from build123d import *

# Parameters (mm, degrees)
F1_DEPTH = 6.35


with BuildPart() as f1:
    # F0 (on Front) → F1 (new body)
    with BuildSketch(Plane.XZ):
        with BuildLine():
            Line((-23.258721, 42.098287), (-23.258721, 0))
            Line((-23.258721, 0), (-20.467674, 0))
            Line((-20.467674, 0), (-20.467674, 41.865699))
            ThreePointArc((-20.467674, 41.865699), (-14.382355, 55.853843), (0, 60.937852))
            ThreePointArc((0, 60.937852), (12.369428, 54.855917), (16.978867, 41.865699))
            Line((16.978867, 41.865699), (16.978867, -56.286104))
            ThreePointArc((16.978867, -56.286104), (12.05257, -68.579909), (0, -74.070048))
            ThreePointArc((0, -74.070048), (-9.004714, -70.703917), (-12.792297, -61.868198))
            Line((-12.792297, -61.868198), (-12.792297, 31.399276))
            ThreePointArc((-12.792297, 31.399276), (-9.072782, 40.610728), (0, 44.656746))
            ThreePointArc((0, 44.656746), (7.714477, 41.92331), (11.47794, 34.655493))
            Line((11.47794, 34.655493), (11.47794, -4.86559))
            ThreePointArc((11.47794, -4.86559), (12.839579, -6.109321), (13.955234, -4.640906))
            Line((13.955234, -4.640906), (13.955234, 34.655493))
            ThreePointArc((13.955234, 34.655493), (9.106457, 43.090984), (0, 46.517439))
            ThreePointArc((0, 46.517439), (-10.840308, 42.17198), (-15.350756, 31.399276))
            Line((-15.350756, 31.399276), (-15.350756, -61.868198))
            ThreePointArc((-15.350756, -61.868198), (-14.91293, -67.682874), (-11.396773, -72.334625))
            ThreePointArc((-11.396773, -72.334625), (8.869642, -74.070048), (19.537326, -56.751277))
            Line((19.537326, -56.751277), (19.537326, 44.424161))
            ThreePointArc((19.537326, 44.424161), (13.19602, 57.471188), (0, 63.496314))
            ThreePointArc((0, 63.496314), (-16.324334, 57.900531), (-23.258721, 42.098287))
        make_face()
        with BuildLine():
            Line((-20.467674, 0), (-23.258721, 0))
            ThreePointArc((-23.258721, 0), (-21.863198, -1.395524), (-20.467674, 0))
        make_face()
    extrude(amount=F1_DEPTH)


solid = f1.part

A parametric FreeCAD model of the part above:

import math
import FreeCAD as App
import Part
import Sketcher
Q = App.Units.Quantity

doc = App.newDocument("Part")
body = doc.addObject("PartDesign::Body", "Body")

# Sketch on XZ plane
sketch1 = doc.addObject("Sketcher::SketchObject", "Sketch")
body.addObject(sketch1)
sketch1.AttachmentSupport = (doc.XZ_Plane, [""])
sketch1.MapMode = "FlatFace"
sketch1.addGeometry(Part.LineSegment(App.Vector(-23.258721, 42.098287, 0), App.Vector(-23.258721, 0, 0)), False)
sketch1.addGeometry(Part.ArcOfCircle(Part.Circle(App.Vector(-21.863197, 0, 0), App.Vector(0, 0, 1), 1.395523), math.radians(179.999979), math.radians(360.000021)), False)
sketch1.addGeometry(Part.LineSegment(App.Vector(-20.467674, 0, 0), App.Vector(-20.467674, 41.865699, 0)), False)
sketch1.addGeometry(Part.ArcOfCircle(Part.Circle(App.Vector(-1.347946, 41.865699, 0), App.Vector(0, 0, 1), 19.119728), math.radians(85.957277), math.radians(180)), False)
sketch1.addGeometry(Part.ArcOfCircle(Part.Circle(App.Vector(-1.289239, 42.696372, 0), App.Vector(0, 0, 1), 18.286983), math.radians(-2.603515), math.radians(85.957271)), False)
sketch1.addGeometry(Part.LineSegment(App.Vector(16.978867, 41.865699, 0), App.Vector(16.978867, -56.286104, 0)), False)
sketch1.addGeometry(Part.ArcOfCircle(Part.Circle(App.Vector(-0.824163, -56.286105, 0), App.Vector(0, 0, 1), 17.80303), math.radians(-87.346633), math.radians(0.000002)), False)
sketch1.addGeometry(Part.ArcOfCircle(Part.Circle(App.Vector(-0.565996, -61.856849, 0), App.Vector(0, 0, 1), 12.226307), math.radians(-179.946817), math.radians(-87.346643)), False)
sketch1.addGeometry(Part.LineSegment(App.Vector(-12.792297, -61.868198, 0), App.Vector(-12.792297, 31.399276, 0)), False)
sketch1.addGeometry(Part.ArcOfCircle(Part.Circle(App.Vector(0.47363, 31.399277, 0), App.Vector(0, 0, 1), 13.265927), math.radians(92.046052), math.radians(180.000002)), False)
sketch1.addGeometry(Part.ArcOfCircle(Part.Circle(App.Vector(0.397647, 33.526149, 0), App.Vector(0, 0, 1), 11.137697), math.radians(5.819697), math.radians(92.046056)), False)
sketch1.addGeometry(Part.LineSegment(App.Vector(11.47794, 34.655493, 0), App.Vector(11.47794, -4.86559, 0)), False)
sketch1.addGeometry(Part.ArcOfCircle(Part.Circle(App.Vector(12.726776, -4.86559, 0), App.Vector(0, 0, 1), 1.248836), math.radians(-179.999994), math.radians(10.364786)), False)
sketch1.addGeometry(Part.LineSegment(App.Vector(13.955234, -4.640906, 0), App.Vector(13.955234, 34.655493, 0)), False)
sketch1.addGeometry(Part.ArcOfCircle(Part.Circle(App.Vector(-0.219843, 32.118863, 0), App.Vector(0, 0, 1), 14.400254), math.radians(10.145688), math.radians(89.125252)), False)
sketch1.addGeometry(Part.ArcOfCircle(Part.Circle(App.Vector(-0.230832, 31.399278, 0), App.Vector(0, 0, 1), 15.119924), math.radians(89.125244), math.radians(180.000006)), False)
sketch1.addGeometry(Part.LineSegment(App.Vector(-15.350756, 31.399276, 0), App.Vector(-15.350756, -61.868198, 0)), False)
sketch1.addGeometry(Part.ArcOfCircle(Part.Circle(App.Vector(-5.246798, -64.031225, 0), App.Vector(0, 0, 1), 10.332892), math.radians(167.916668), math.radians(233.474228)), False)
sketch1.addGeometry(Part.ArcOfCircle(Part.Circle(App.Vector(0.145147, -56.751278, 0), App.Vector(0, 0, 1), 19.392179), math.radians(-126.525768), math.radians(0.000002)), False)
sketch1.addGeometry(Part.LineSegment(App.Vector(19.537326, -56.751277, 0), App.Vector(19.537326, 44.424161, 0)), False)
sketch1.addGeometry(Part.ArcOfCircle(Part.Circle(App.Vector(-1.783968, 42.125836, 0), App.Vector(0, 0, 1), 21.44481), math.radians(6.152433), math.radians(85.228117)), False)
sketch1.addGeometry(Part.ArcOfCircle(Part.Circle(App.Vector(-1.786267, 42.098288, 0), App.Vector(0, 0, 1), 21.472454), math.radians(85.228119), math.radians(180.000003)), False)
sketch1.addConstraint(Sketcher.Constraint("Coincident", 0, 2, 1, 1))
sketch1.addConstraint(Sketcher.Constraint("Coincident", 1, 2, 2, 1))
sketch1.addConstraint(Sketcher.Constraint("Coincident", 2, 2, 3, 2))
sketch1.addConstraint(Sketcher.Constraint("Coincident", 3, 1, 4, 2))
sketch1.addConstraint(Sketcher.Constraint("Coincident", 4, 1, 5, 1))
sketch1.addConstraint(Sketcher.Constraint("Coincident", 5, 2, 6, 2))
sketch1.addConstraint(Sketcher.Constraint("Coincident", 6, 1, 7, 2))
sketch1.addConstraint(Sketcher.Constraint("Coincident", 7, 1, 8, 1))
sketch1.addConstraint(Sketcher.Constraint("Coincident", 8, 2, 9, 2))
sketch1.addConstraint(Sketcher.Constraint("Coincident", 9, 1, 10, 2))
sketch1.addConstraint(Sketcher.Constraint("Coincident", 10, 1, 11, 1))
sketch1.addConstraint(Sketcher.Constraint("Coincident", 11, 2, 12, 1))
sketch1.addConstraint(Sketcher.Constraint("Coincident", 12, 2, 13, 1))
sketch1.addConstraint(Sketcher.Constraint("Coincident", 13, 2, 14, 1))
sketch1.addConstraint(Sketcher.Constraint("Coincident", 14, 2, 15, 1))
sketch1.addConstraint(Sketcher.Constraint("Coincident", 15, 2, 16, 1))
sketch1.addConstraint(Sketcher.Constraint("Coincident", 16, 2, 17, 1))
sketch1.addConstraint(Sketcher.Constraint("Coincident", 17, 2, 18, 1))
sketch1.addConstraint(Sketcher.Constraint("Coincident", 18, 2, 19, 1))
sketch1.addConstraint(Sketcher.Constraint("Coincident", 19, 2, 20, 1))
sketch1.addConstraint(Sketcher.Constraint("Coincident", 20, 2, 21, 1))
sketch1.addConstraint(Sketcher.Constraint("Coincident", 21, 2, 0, 1))
sketch1.addConstraint(Sketcher.Constraint("Vertical", 0))
sketch1.addConstraint(Sketcher.Constraint("Vertical", 2))
sketch1.addConstraint(Sketcher.Constraint("Vertical", 5))
sketch1.addConstraint(Sketcher.Constraint("Vertical", 8))
sketch1.addConstraint(Sketcher.Constraint("Vertical", 11))
sketch1.addConstraint(Sketcher.Constraint("Vertical", 13))
sketch1.addConstraint(Sketcher.Constraint("Vertical", 16))
sketch1.addConstraint(Sketcher.Constraint("Vertical", 19))
sketch1.addConstraint(Sketcher.Constraint("PointOnObject", 1, 3, -1))
sketch1.addConstraint(Sketcher.Constraint("PointOnObject", 0, 2, -1))
sketch1.addConstraint(Sketcher.Constraint("PointOnObject", 1, 2, -1))
sketch1.addConstraint(Sketcher.Constraint("PointOnObject", 3, 1, -2))
sketch1.addConstraint(Sketcher.Constraint("PointOnObject", 6, 1, -2))
sketch1.addConstraint(Sketcher.Constraint("PointOnObject", 9, 1, -2))
sketch1.addConstraint(Sketcher.Constraint("PointOnObject", 14, 2, -2))
sketch1.addConstraint(Sketcher.Constraint("PointOnObject", 20, 2, -2))
sketch1.addConstraint(Sketcher.Constraint("Radius", 6, Q("17.80303 mm")))
sketch1.addConstraint(Sketcher.Constraint("Radius", 17, Q("10.332892 mm")))
sketch1.addConstraint(Sketcher.Constraint("Radius", 18, Q("19.392179 mm")))
sketch1.addConstraint(Sketcher.Constraint("Radius", 20, Q("21.44481 mm")))
sketch1.addConstraint(Sketcher.Constraint("DistanceY", 2, 1, 2, 2, Q("41.865699 mm")))
sketch1.addConstraint(Sketcher.Constraint("DistanceY", 13, 1, 13, 2, Q("39.296399 mm")))
sketch1.addConstraint(Sketcher.Constraint("Radius", 1, Q("1.395523 mm")))
sketch1.addConstraint(Sketcher.Constraint("Radius", 3, Q("19.119728 mm")))
sketch1.addConstraint(Sketcher.Constraint("Radius", 4, Q("18.286983 mm")))
sketch1.addConstraint(Sketcher.Constraint("Radius", 7, Q("12.226307 mm")))
sketch1.addConstraint(Sketcher.Constraint("Radius", 9, Q("13.265927 mm")))
sketch1.addConstraint(Sketcher.Constraint("Radius", 10, Q("11.137697 mm")))
sketch1.addConstraint(Sketcher.Constraint("Radius", 12, Q("1.248836 mm")))
sketch1.addConstraint(Sketcher.Constraint("Radius", 14, Q("14.400254 mm")))
sketch1.addConstraint(Sketcher.Constraint("Radius", 15, Q("15.119924 mm")))
sketch1.addConstraint(Sketcher.Constraint("Radius", 21, Q("21.472454 mm")))
sketch1.addConstraint(Sketcher.Constraint("DistanceY", 19, 1, 19, 2, Q("101.175438 mm")))
sketch1.addConstraint(Sketcher.Constraint("DistanceY", -1, 1, 3, 3, Q("41.865699 mm")))
sketch1.addConstraint(Sketcher.Constraint("DistanceX", 17, 3, -1, 1, Q("5.246798 mm")))
sketch1.addConstraint(Sketcher.Constraint("DistanceY", -1, 1, 4, 1, Q("41.865699 mm")))
sketch1.addConstraint(Sketcher.Constraint("DistanceY", 7, 1, -1, 1, Q("61.868198 mm")))
sketch1.addConstraint(Sketcher.Constraint("DistanceX", 1, 3, 7, 3, Q("21.297202 mm")))
sketch1.addConstraint(Sketcher.Constraint("DistanceX", 1, 3, 17, 3, Q("16.616399 mm")))
sketch1.addConstraint(Sketcher.Constraint("DistanceX", 21, 3, 20, 3, Q("0.002299 mm")))
sketch1.addConstraint(Sketcher.Constraint("DistanceY", 17, 2, 17, 3, Q("8.3034 mm")))
sketch1.addConstraint(Sketcher.Constraint("DistanceY", 0, 2, 0, 1, Q("42.098287 mm")))
sketch1.addConstraint(Sketcher.Constraint("DistanceY", 5, 2, 5, 1, Q("98.151803 mm")))
sketch1.addConstraint(Sketcher.Constraint("DistanceY", 8, 1, 8, 2, Q("93.267474 mm")))
sketch1.addConstraint(Sketcher.Constraint("DistanceY", 11, 2, 11, 1, Q("39.521083 mm")))
sketch1.addConstraint(Sketcher.Constraint("DistanceY", 16, 2, 16, 1, Q("93.267474 mm")))
sketch1.addConstraint(Sketcher.Constraint("DistanceX", 4, 3, -1, 1, Q("1.289239 mm")))
sketch1.addConstraint(Sketcher.Constraint("DistanceY", 7, 3, -1, 1, Q("61.856849 mm")))
sketch1.addConstraint(Sketcher.Constraint("DistanceY", -1, 1, 10, 3, Q("33.526149 mm")))
sketch1.addConstraint(Sketcher.Constraint("DistanceY", 12, 3, -1, 1, Q("4.86559 mm")))
sketch1.addConstraint(Sketcher.Constraint("DistanceX", -1, 1, 10, 1, Q("11.47794 mm")))
sketch1.addConstraint(Sketcher.Constraint("DistanceY", 11, 2, -1, 1, Q("4.86559 mm")))
sketch1.addConstraint(Sketcher.Constraint("DistanceY", -1, 1, 14, 2, Q("46.517439 mm")))
sketch1.addConstraint(Sketcher.Constraint("DistanceY", -1, 1, 19, 2, Q("44.424161 mm")))
sketch1.addConstraint(Sketcher.Constraint("DistanceX", 15, 3, 14, 3, Q("0.010989 mm")))
sketch1.addConstraint(Sketcher.Constraint("DistanceY", 17, 3, 6, 3, Q("7.74512 mm")))
sketch1.addConstraint(Sketcher.Constraint("DistanceX", 6, 3, 18, 3, Q("0.96931 mm")))
sketch1.addConstraint(Sketcher.Constraint("DistanceX", 1, 3, 12, 2, Q("35.818431 mm")))
pad1 = doc.addObject("PartDesign::Pad", "Pad")
body.addObject(pad1)
pad1.Profile = sketch1
pad1.Length = Q("0.25 in")

doc.recompute()
